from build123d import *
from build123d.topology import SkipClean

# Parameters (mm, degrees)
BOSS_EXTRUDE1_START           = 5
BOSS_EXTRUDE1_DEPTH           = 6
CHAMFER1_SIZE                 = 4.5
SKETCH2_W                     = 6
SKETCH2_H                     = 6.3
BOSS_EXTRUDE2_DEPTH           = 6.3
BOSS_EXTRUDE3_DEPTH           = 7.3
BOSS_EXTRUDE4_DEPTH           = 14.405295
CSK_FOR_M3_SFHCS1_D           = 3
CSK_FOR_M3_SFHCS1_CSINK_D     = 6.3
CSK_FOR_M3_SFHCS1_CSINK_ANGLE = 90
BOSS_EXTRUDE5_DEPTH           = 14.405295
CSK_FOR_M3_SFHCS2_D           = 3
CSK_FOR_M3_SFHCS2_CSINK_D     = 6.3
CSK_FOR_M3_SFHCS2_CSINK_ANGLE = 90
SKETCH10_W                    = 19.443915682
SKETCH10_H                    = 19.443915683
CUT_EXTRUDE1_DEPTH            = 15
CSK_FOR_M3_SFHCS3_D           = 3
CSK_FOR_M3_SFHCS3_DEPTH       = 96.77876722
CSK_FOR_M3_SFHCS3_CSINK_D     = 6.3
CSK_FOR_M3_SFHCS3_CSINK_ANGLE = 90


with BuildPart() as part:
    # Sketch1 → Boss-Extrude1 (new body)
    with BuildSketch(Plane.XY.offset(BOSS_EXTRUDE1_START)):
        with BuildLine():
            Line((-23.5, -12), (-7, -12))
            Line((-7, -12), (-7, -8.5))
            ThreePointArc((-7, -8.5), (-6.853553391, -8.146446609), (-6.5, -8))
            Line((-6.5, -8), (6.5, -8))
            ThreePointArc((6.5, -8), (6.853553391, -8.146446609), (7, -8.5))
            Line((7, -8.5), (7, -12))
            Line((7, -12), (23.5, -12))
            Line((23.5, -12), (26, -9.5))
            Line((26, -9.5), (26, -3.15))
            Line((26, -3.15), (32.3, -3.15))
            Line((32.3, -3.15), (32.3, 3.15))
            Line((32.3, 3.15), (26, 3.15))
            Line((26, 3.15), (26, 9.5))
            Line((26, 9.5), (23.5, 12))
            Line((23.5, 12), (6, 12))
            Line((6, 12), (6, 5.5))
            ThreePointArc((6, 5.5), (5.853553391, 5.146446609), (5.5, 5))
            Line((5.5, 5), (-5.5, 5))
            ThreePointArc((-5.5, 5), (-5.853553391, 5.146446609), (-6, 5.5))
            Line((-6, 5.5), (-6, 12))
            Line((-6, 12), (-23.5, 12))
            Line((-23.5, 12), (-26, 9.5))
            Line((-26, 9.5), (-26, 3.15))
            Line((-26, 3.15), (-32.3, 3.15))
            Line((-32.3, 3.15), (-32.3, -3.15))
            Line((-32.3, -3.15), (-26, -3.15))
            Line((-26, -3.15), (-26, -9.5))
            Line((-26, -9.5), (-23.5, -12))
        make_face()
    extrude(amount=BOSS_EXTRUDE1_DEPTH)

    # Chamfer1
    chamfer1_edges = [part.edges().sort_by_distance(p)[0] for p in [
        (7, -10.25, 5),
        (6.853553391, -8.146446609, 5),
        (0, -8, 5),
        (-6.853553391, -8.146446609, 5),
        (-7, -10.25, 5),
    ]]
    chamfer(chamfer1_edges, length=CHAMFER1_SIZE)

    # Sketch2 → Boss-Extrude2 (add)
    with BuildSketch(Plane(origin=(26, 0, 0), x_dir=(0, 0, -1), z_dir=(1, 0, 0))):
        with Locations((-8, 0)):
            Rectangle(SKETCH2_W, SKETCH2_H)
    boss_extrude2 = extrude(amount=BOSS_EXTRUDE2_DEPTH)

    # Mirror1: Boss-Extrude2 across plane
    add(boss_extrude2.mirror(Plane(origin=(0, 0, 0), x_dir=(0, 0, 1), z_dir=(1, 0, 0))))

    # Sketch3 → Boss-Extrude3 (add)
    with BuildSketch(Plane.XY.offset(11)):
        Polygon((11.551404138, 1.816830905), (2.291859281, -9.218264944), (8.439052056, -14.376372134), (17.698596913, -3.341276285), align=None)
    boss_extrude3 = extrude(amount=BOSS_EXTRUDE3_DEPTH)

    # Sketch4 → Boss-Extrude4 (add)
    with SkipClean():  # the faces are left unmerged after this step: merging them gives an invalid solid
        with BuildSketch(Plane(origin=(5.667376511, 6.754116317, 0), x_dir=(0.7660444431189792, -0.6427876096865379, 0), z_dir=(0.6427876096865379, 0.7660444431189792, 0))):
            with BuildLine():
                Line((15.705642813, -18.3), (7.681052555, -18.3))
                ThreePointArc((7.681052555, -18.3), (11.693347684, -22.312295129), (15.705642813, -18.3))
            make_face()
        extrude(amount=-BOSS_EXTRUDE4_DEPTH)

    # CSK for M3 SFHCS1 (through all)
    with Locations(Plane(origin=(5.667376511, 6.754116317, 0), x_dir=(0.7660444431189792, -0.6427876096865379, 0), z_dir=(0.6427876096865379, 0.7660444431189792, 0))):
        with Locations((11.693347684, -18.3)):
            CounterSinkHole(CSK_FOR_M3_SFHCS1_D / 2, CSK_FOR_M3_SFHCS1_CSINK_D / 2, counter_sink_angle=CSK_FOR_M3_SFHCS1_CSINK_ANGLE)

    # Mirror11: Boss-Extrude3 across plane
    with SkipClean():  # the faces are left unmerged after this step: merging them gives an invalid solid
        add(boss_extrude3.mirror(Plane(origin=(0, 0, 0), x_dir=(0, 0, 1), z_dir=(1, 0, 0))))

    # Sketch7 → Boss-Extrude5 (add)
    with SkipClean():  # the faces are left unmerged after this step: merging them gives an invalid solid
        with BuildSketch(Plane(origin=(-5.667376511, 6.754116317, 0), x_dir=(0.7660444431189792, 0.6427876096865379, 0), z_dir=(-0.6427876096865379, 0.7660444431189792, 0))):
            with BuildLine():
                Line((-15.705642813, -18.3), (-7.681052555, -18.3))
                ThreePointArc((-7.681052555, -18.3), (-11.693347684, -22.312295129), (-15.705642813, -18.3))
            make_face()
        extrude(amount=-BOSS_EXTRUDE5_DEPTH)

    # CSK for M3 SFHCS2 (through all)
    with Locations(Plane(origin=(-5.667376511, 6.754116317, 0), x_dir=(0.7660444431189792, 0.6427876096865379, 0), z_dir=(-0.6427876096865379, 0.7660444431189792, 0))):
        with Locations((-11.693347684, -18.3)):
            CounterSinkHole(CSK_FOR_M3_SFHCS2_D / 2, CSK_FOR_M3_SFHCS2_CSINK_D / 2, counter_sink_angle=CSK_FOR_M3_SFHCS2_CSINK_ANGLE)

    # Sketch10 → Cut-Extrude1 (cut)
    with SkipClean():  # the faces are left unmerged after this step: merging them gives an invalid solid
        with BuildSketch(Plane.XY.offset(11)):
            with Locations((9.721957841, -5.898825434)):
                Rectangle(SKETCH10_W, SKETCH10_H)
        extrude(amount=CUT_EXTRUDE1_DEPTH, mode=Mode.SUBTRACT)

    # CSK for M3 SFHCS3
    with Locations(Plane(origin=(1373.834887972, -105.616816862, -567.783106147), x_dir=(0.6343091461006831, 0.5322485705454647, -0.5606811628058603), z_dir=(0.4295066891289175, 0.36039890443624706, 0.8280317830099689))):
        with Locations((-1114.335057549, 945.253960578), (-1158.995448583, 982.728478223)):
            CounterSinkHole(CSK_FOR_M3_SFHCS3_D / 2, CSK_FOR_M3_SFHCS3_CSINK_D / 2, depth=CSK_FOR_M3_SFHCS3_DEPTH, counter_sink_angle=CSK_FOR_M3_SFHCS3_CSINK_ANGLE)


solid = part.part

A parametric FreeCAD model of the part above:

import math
import FreeCAD as App
import Part
import Sketcher
Q = App.Units.Quantity


def edges_at(feature, points):
    """Names of the edges that pass closest to the given points."""
    edges = feature.Shape.Edges
    near = lambda p: min(range(len(edges)), key=lambda i: edges[i].distToShape(Part.Vertex(*p))[0])
    return sorted({f"Edge{near(p) + 1}" for p in points})


def add_polygon(sketch, points):
    """Adds a closed chain of lines whose ends are joined by coincident constraints."""
    first, n = sketch.GeometryCount, len(points)
    for a, b in zip(points, points[1:] + points[:1]):
        sketch.addGeometry(Part.LineSegment(App.Vector(*a, 0), App.Vector(*b, 0)), False)
    for i in range(n):
        sketch.addConstraint(Sketcher.Constraint("Coincident", first + i, 2, first + (i + 1) % n, 1))

doc = App.newDocument("Part")
body = doc.addObject("PartDesign::Body", "Body")

sketch1 = body.newObject("Sketcher::SketchObject", "Sketch")
sketch1.AttachmentSupport = (doc.getObject("XY_Plane"), [""])
sketch1.MapMode = "FlatFace"
sketch1.AttachmentOffset = App.Placement(App.Vector(0, 0, 5), App.Rotation())
sketch1.addGeometry(Part.LineSegment(App.Vector(-23.5, -12, 0), App.Vector(-7, -12, 0)), False)
sketch1.addGeometry(Part.LineSegment(App.Vector(-7, -12, 0), App.Vector(-7, -8.5, 0)), False)
sketch1.addGeometry(Part.ArcOfCircle(Part.Circle(App.Vector(-6.5, -8.5, 0), App.Vector(0, 0, 1), 0.5), math.radians(90), math.radians(180)), False)
sketch1.addGeometry(Part.LineSegment(App.Vector(-6.5, -8, 0), App.Vector(6.5, -8, 0)), False)
sketch1.addGeometry(Part.ArcOfCircle(Part.Circle(App.Vector(6.5, -8.5, 0), App.Vector(0, 0, 1), 0.5), math.radians(0), math.radians(90)), False)
sketch1.addGeometry(Part.LineSegment(App.Vector(7, -8.5, 0), App.Vector(7, -12, 0)), False)
sketch1.addGeometry(Part.LineSegment(App.Vector(7, -12, 0), App.Vector(23.5, -12, 0)), False)
sketch1.addGeometry(Part.LineSegment(App.Vector(23.5, -12, 0), App.Vector(26, -9.5, 0)), False)
sketch1.addGeometry(Part.LineSegment(App.Vector(26, -9.5, 0), App.Vector(26, -3.15, 0)), False)
sketch1.addGeometry(Part.LineSegment(App.Vector(26, -3.15, 0), App.Vector(32.3, -3.15, 0)), False)
sketch1.addGeometry(Part.LineSegment(App.Vector(32.3, -3.15, 0), App.Vector(32.3, 3.15, 0)), False)
sketch1.addGeometry(Part.LineSegment(App.Vector(32.3, 3.15, 0), App.Vector(26, 3.15, 0)), False)
sketch1.addGeometry(Part.LineSegment(App.Vector(26, 3.15, 0), App.Vector(26, 9.5, 0)), False)
sketch1.addGeometry(Part.LineSegment(App.Vector(26, 9.5, 0), App.Vector(23.5, 12, 0)), False)
sketch1.addGeometry(Part.LineSegment(App.Vector(23.5, 12, 0), App.Vector(6, 12, 0)), False)
sketch1.addGeometry(Part.LineSegment(App.Vector(6, 12, 0), App.Vector(6, 5.5, 0)), False)
sketch1.addGeometry(Part.ArcOfCircle(Part.Circle(App.Vector(5.5, 5.5, 0), App.Vector(0, 0, 1), 0.5), math.radians(-90), math.radians(0)), False)
sketch1.addGeometry(Part.LineSegment(App.Vector(5.5, 5, 0), App.Vector(-5.5, 5, 0)), False)
sketch1.addGeometry(Part.ArcOfCircle(Part.Circle(App.Vector(-5.5, 5.5, 0), App.Vector(0, 0, 1), 0.5), math.radians(180), math.radians(270)), False)
sketch1.addGeometry(Part.LineSegment(App.Vector(-6, 5.5, 0), App.Vector(-6, 12, 0)), False)
sketch1.addGeometry(Part.LineSegment(App.Vector(-6, 12, 0), App.Vector(-23.5, 12, 0)), False)
sketch1.addGeometry(Part.LineSegment(App.Vector(-23.5, 12, 0), App.Vector(-26, 9.5, 0)), False)
sketch1.addGeometry(Part.LineSegment(App.Vector(-26, 9.5, 0), App.Vector(-26, 3.15, 0)), False)
sketch1.addGeometry(Part.LineSegment(App.Vector(-26, 3.15, 0), App.Vector(-32.3, 3.15, 0)), False)
sketch1.addGeometry(Part.LineSegment(App.Vector(-32.3, 3.15, 0), App.Vector(-32.3, -3.15, 0)), False)
sketch1.addGeometry(Part.LineSegment(App.Vector(-32.3, -3.15, 0), App.Vector(-26, -3.15, 0)), False)
sketch1.addGeometry(Part.LineSegment(App.Vector(-26, -3.15, 0), App.Vector(-26, -9.5, 0)), False)
sketch1.addGeometry(Part.LineSegment(App.Vector(-26, -9.5, 0), App.Vector(-23.5, -12, 0)), False)
sketch1.addConstraint(Sketcher.Constraint("Coincident", 0, 2, 1, 1))
sketch1.addConstraint(Sketcher.Constraint("Tangent", 1, 2, 2, 2))
sketch1.addConstraint(Sketcher.Constraint("Tangent", 2, 1, 3, 1))
sketch1.addConstraint(Sketcher.Constraint("Tangent", 3, 2, 4, 2))
sketch1.addConstraint(Sketcher.Constraint("Tangent", 4, 1, 5, 1))
sketch1.addConstraint(Sketcher.Constraint("Coincident", 5, 2, 6, 1))
sketch1.addConstraint(Sketcher.Constraint("Coincident", 6, 2, 7, 1))
sketch1.addConstraint(Sketcher.Constraint("Coincident", 7, 2, 8, 1))
sketch1.addConstraint(Sketcher.Constraint("Coincident", 8, 2, 9, 1))
sketch1.addConstraint(Sketcher.Constraint("Coincident", 9, 2, 10, 1))
sketch1.addConstraint(Sketcher.Constraint("Coincident", 10, 2, 11, 1))
sketch1.addConstraint(Sketcher.Constraint("Coincident", 11, 2, 12, 1))
sketch1.addConstraint(Sketcher.Constraint("Coincident", 12, 2, 13, 1))
sketch1.addConstraint(Sketcher.Constraint("Coincident", 13, 2, 14, 1))
sketch1.addConstraint(Sketcher.Constraint("Coincident", 14, 2, 15, 1))
sketch1.addConstraint(Sketcher.Constraint("Tangent", 15, 2, 16, 2))
sketch1.addConstraint(Sketcher.Constraint("Tangent", 16, 1, 17, 1))
sketch1.addConstraint(Sketcher.Constraint("Tangent", 17, 2, 18, 2))
sketch1.addConstraint(Sketcher.Constraint("Tangent", 18, 1, 19, 1))
sketch1.addConstraint(Sketcher.Constraint("Coincident", 19, 2, 20, 1))
sketch1.addConstraint(Sketcher.Constraint("Coincident", 20, 2, 21, 1))
sketch1.addConstraint(Sketcher.Constraint("Coincident", 21, 2, 22, 1))
sketch1.addConstraint(Sketcher.Constraint("Coincident", 22, 2, 23, 1))
sketch1.addConstraint(Sketcher.Constraint("Coincident", 23, 2, 24, 1))
sketch1.addConstraint(Sketcher.Constraint("Coincident", 24, 2, 25, 1))
sketch1.addConstraint(Sketcher.Constraint("Coincident", 25, 2, 26, 1))
sketch1.addConstraint(Sketcher.Constraint("Coincident", 26, 2, 27, 1))
sketch1.addConstraint(Sketcher.Constraint("Coincident", 27, 2, 0, 1))
sketch1.addConstraint(Sketcher.Constraint("Horizontal", 0))
sketch1.addConstraint(Sketcher.Constraint("Vertical", 1))
sketch1.addConstraint(Sketcher.Constraint("Horizontal", 3))
sketch1.addConstraint(Sketcher.Constraint("Vertical", 5))
sketch1.addConstraint(Sketcher.Constraint("Horizontal", 6))
sketch1.addConstraint(Sketcher.Constraint("Vertical", 8))
sketch1.addConstraint(Sketcher.Constraint("Horizontal", 9))
sketch1.addConstraint(Sketcher.Constraint("Vertical", 10))
sketch1.addConstraint(Sketcher.Constraint("Horizontal", 11))
sketch1.addConstraint(Sketcher.Constraint("Vertical", 12))
sketch1.addConstraint(Sketcher.Constraint("Horizontal", 14))
sketch1.addConstraint(Sketcher.Constraint("Vertical", 15))
sketch1.addConstraint(Sketcher.Constraint("Horizontal", 17))
sketch1.addConstraint(Sketcher.Constraint("Vertical", 19))
sketch1.addConstraint(Sketcher.Constraint("Horizontal", 20))
sketch1.addConstraint(Sketcher.Constraint("Vertical", 22))
sketch1.addConstraint(Sketcher.Constraint("Horizontal", 23))
sketch1.addConstraint(Sketcher.Constraint("Vertical", 24))
sketch1.addConstraint(Sketcher.Constraint("Horizontal", 25))
sketch1.addConstraint(Sketcher.Constraint("Vertical", 26))
sketch1.addConstraint(Sketcher.Constraint("Equal", 2, 4))
sketch1.addConstraint(Sketcher.Constraint("Equal", 4, 16))
sketch1.addConstraint(Sketcher.Constraint("Equal", 16, 18))
sketch1.addConstraint(Sketcher.Constraint("Symmetric", 6, 2, 20, 2, -1, 1))
sketch1.addConstraint(Sketcher.Constraint("Symmetric", 7, 2, 21, 2, -1, 1))
sketch1.addConstraint(Sketcher.Constraint("Symmetric", 9, 2, 23, 2, -1, 1))
sketch1.addConstraint(Sketcher.Constraint("Symmetric", 11, 2, 25, 2, -1, 1))
sketch1.addConstraint(Sketcher.Constraint("Symmetric", 13, 2, 27, 2, -1, 1))
sketch1.addConstraint(Sketcher.Constraint("Symmetric", 0, 2, 5, 2, -2))
sketch1.addConstraint(Sketcher.Constraint("Symmetric", 12, 2, 21, 2, -2))
sketch1.addConstraint(Sketcher.Constraint("Perpendicular", 7, 13))
sketch1.addConstraint(Sketcher.Constraint("Perpendicular", 21, 27))
sketch1.addConstraint(Sketcher.Constraint("Horizontal", 11, 2, 22, 2))
sketch1.addConstraint(Sketcher.Constraint("Vertical", 6, 2, 13, 2))
sketch1.addConstraint(Sketcher.Constraint("Equal", 14, 20))
sketch1.addConstraint(Sketcher.Constraint("Equal", 25, 10))
sketch1.addConstraint(Sketcher.Constraint("Radius", 2, Q("0.5 mm")))
sketch1.addConstraint(Sketcher.Constraint("DistanceX", 3, 1, 3, 2, Q("13 mm")))
sketch1.addConstraint(Sketcher.Constraint("DistanceX", 17, 2, 17, 1, Q("11 mm")))
sketch1.addConstraint(Sketcher.Constraint("DistanceX", 0, 1, 0, 2, Q("16.5 mm")))
sketch1.addConstraint(Sketcher.Constraint("DistanceX", 9, 1, 9, 2, Q("6.3 mm")))
sketch1.addConstraint(Sketcher.Constraint("DistanceY", 1, 1, 1, 2, Q("3.5 mm")))
sketch1.addConstraint(Sketcher.Constraint("DistanceY", 15, 2, 15, 1, Q("6.5 mm")))
sketch1.addConstraint(Sketcher.Constraint("DistanceY", 0, 2, -1, 1, Q("12 mm")))
sketch1.addConstraint(Sketcher.Constraint("DistanceX", -1, 1, 7, 2, Q("26 mm")))
pad1 = body.newObject("PartDesign::Pad", "Pad")
pad1.Profile = sketch1
pad1.Length = 6
doc.recompute()

chamfer = body.newObject("PartDesign::Chamfer", "Chamfer")
chamfer.Base = (pad1, edges_at(pad1, [
    (7, -10.25, 5),
    (6.854, -8.146, 5),
    (0, -8, 5),
    (-6.854, -8.146, 5),
    (-7, -10.25, 5),
]))
chamfer.Size = 4.5

sketch2 = body.newObject("Sketcher::SketchObject", "Sketch001")
sketch2.AttachmentSupport = (doc.getObject("YZ_Plane"), [""])
sketch2.MapMode = "FlatFace"
sketch2.AttachmentOffset = App.Placement(App.Vector(0, 0, 26), App.Rotation())
add_polygon(sketch2, [(3, 11), (-3, 11), (-3, 5), (3, 5)])
sketch2.addConstraint(Sketcher.Constraint("Horizontal", 0))
sketch2.addConstraint(Sketcher.Constraint("Vertical", 1))
sketch2.addConstraint(Sketcher.Constraint("Horizontal", 2))
sketch2.addConstraint(Sketcher.Constraint("Vertical", 3))
sketch2.addConstraint(Sketcher.Constraint("DistanceY", 1, 2, 1, 1, Q("6 mm")))
sketch2.addConstraint(Sketcher.Constraint("DistanceX", 0, 2, 0, 1, Q("6.3 mm")))
sketch2.addConstraint(Sketcher.Constraint("DistanceY", -1, 1, 0, 2, Q("11 mm")))
sketch2.addConstraint(Sketcher.Constraint("DistanceX", 0, 2, -1, 1, Q("3.15 mm")))
pad2 = body.newObject("PartDesign::Pad", "Pad001")
pad2.Profile = sketch2
pad2.Length = 6.3
doc.recompute()

mirrored = body.newObject("PartDesign::Mirrored", "Mirrored")
mirrored.Originals = [pad2]
mirrored.MirrorPlane = (doc.getObject("YZ_Plane"), [""])
body.Tip = mirrored

sketch3 = body.newObject("Sketcher::SketchObject", "Sketch002")
sketch3.AttachmentSupport = (doc.getObject("XY_Plane"), [""])
sketch3.MapMode = "FlatFace"
sketch3.AttachmentOffset = App.Placement(App.Vector(0, 0, 11), App.Rotation())
add_polygon(sketch3, [(12, 2), (2, -9), (8, -14), (18, -3)])
sketch3.addConstraint(Sketcher.Constraint("Perpendicular", 0, 1))
sketch3.addConstraint(Sketcher.Constraint("Perpendicular", 1, 2))
sketch3.addConstraint(Sketcher.Constraint("Perpendicular", 2, 3))
sketch3.addConstraint(Sketcher.Constraint("Angle", 0, Q("-130 deg")))
sketch3.addConstraint(Sketcher.Constraint("Distance", 1, Q("8.02459 mm")))
sketch3.addConstraint(Sketcher.Constraint("DistanceX", -1, 1, 0, 2, Q("2.291859 mm")))
sketch3.addConstraint(Sketcher.Constraint("DistanceY", -1, 1, 3, 2, Q("1.816831 mm")))
sketch3.addConstraint(Sketcher.Constraint("DistanceY", 0, 2, 2, 2, Q("5.876989 mm")))
pad3 = body.newObject("PartDesign::Pad", "Pad002")
pad3.Profile = sketch3
pad3.Length = 7.3

sketch4 = body.newObject("Sketcher::SketchObject", "Sketch003")
sketch4.Placement = App.Placement(App.Vector(5.667377, 6.754116, 0), App.Rotation(App.Vector(0.766044443, -0.64278761, 0), App.Vector(0, 0, -1), App.Vector(0.64278761, 0.766044443, 0), "ZXY"))
sketch4.addGeometry(Part.LineSegment(App.Vector(15.7, -18.3, 0), App.Vector(7.7, -18.3, 0)), False)
sketch4.addGeometry(Part.ArcOfCircle(Part.Circle(App.Vector(11.7, -18.3, 0), App.Vector(0, 0, 1), 4), math.radians(180), math.radians(360)), False)
sketch4.addConstraint(Sketcher.Constraint("Coincident", 0, 1, 1, 2))
sketch4.addConstraint(Sketcher.Constraint("Coincident", 1, 1, 0, 2))
sketch4.addConstraint(Sketcher.Constraint("Horizontal", 0))
sketch4.addConstraint(Sketcher.Constraint("Horizontal", 1, 3, 0, 1))
sketch4.addConstraint(Sketcher.Constraint("DistanceY", 1, 3, -1, 1, Q("18.3 mm")))
sketch4.addConstraint(Sketcher.Constraint("Radius", 1, Q("4.012295 mm")))
sketch4.addConstraint(Sketcher.Constraint("DistanceX", -1, 1, 1, 3, Q("11.693348 mm")))
pad4 = body.newObject("PartDesign::Pad", "Pad003")
pad4.Profile = sketch4
pad4.Length = 14.405295
pad4.Reversed = True

sketch5 = body.newObject("Sketcher::SketchObject", "Sketch004")
sketch5.Placement = App.Placement(App.Vector(5.667377, 6.754116, 0), App.Rotation(App.Vector(0.766044443, -0.64278761, 0), App.Vector(0, 0, -1), App.Vector(0.64278761, 0.766044443, 0), "ZXY"))
sketch5.addGeometry(Part.Circle(App.Vector(11.7, -18.3, 0), App.Vector(0, 0, 1), 1.5), False)
sketch5.addConstraint(Sketcher.Constraint("Diameter", 0, Q("3 mm")))
sketch5.addConstraint(Sketcher.Constraint("DistanceY", 0, 3, -1, 1, Q("18.3 mm")))
sketch5.addConstraint(Sketcher.Constraint("DistanceX", -1, 1, 0, 3, Q("11.693348 mm")))
doc.recompute()
hole = body.newObject("PartDesign::Hole", "Hole")
hole.Profile = sketch5
hole.ThreadType = "None"
hole.Diameter = 3
hole.DepthType = "ThroughAll"
hole.HoleCutType = "Countersink"
hole.HoleCutDiameter = 6.3
hole.HoleCutCountersinkAngle = 90
doc.recompute()

mirrored2 = body.newObject("PartDesign::Mirrored", "Mirrored001")
mirrored2.Originals = [pad3]
mirrored2.MirrorPlane = (doc.getObject("YZ_Plane"), [""])
body.Tip = mirrored2

sketch6 = body.newObject("Sketcher::SketchObject", "Sketch005")
sketch6.Placement = App.Placement(App.Vector(-5.667377, 6.754116, 0), App.Rotation(App.Vector(0.766044443, 0.64278761, 0), App.Vector(0, 0, -1), App.Vector(-0.64278761, 0.766044443, 0), "ZXY"))
sketch6.addGeometry(Part.LineSegment(App.Vector(-7.7, -18.3, 0), App.Vector(-15.7, -18.3, 0)), False)
sketch6.addGeometry(Part.ArcOfCircle(Part.Circle(App.Vector(-11.7, -18.3, 0), App.Vector(0, 0, 1), 4), math.radians(180), math.radians(360)), False)
sketch6.addConstraint(Sketcher.Constraint("Coincident", 0, 1, 1, 2))
sketch6.addConstraint(Sketcher.Constraint("Coincident", 1, 1, 0, 2))
sketch6.addConstraint(Sketcher.Constraint("Horizontal", 0))
sketch6.addConstraint(Sketcher.Constraint("Horizontal", 1, 3, 0, 1))
sketch6.addConstraint(Sketcher.Constraint("DistanceY", 1, 3, -1, 1, Q("18.3 mm")))
sketch6.addConstraint(Sketcher.Constraint("Radius", 1, Q("4.012295 mm")))
sketch6.addConstraint(Sketcher.Constraint("DistanceX", 1, 3, -1, 1, Q("11.693348 mm")))
pad5 = body.newObject("PartDesign::Pad", "Pad004")
pad5.Profile = sketch6
pad5.Length = 14.405295
pad5.Reversed = True

sketch7 = body.newObject("Sketcher::SketchObject", "Sketch006")
sketch7.Placement = App.Placement(App.Vector(-5.667377, 6.754116, 0), App.Rotation(App.Vector(0.766044443, 0.64278761, 0), App.Vector(0, 0, -1), App.Vector(-0.64278761, 0.766044443, 0), "ZXY"))
sketch7.addGeometry(Part.Circle(App.Vector(-11.7, -18.3, 0), App.Vector(0, 0, 1), 1.5), False)
sketch7.addConstraint(Sketcher.Constraint("Diameter", 0, Q("3 mm")))
sketch7.addConstraint(Sketcher.Constraint("DistanceY", 0, 3, -1, 1, Q("18.3 mm")))
sketch7.addConstraint(Sketcher.Constraint("DistanceX", 0, 3, -1, 1, Q("11.693348 mm")))
doc.recompute()
hole2 = body.newObject("PartDesign::Hole", "Hole001")
hole2.Profile = sketch7
hole2.ThreadType = "None"
hole2.Diameter = 3
hole2.DepthType = "ThroughAll"
hole2.HoleCutType = "Countersink"
hole2.HoleCutDiameter = 6.3
hole2.HoleCutCountersinkAngle = 90

sketch8 = body.newObject("Sketcher::SketchObject", "Sketch007")
sketch8.AttachmentSupport = (doc.getObject("XY_Plane"), [""])
sketch8.MapMode = "FlatFace"
sketch8.AttachmentOffset = App.Placement(App.Vector(0, 0, 11), App.Rotation())
add_polygon(sketch8, [(0, 4), (0, -16), (19, -16), (19, 4)])
sketch8.addConstraint(Sketcher.Constraint("Vertical", 0))
sketch8.addConstraint(Sketcher.Constraint("Horizontal", 1))
sketch8.addConstraint(Sketcher.Constraint("Vertical", 2))
sketch8.addConstraint(Sketcher.Constraint("Horizontal", 3))
sketch8.addConstraint(Sketcher.Constraint("PointOnObject", 0, 2, -2))
sketch8.addConstraint(Sketcher.Constraint("Equal", 3, 0))
sketch8.addConstraint(Sketcher.Constraint("DistanceX", 1, 1, 1, 2, Q("19.443916 mm")))
sketch8.addConstraint(Sketcher.Constraint("DistanceY", 0, 2, -1, 1, Q("15.620783 mm")))
pocket1 = body.newObject("PartDesign::Pocket", "Pocket")
pocket1.Profile = sketch8
pocket1.Length = 15
pocket1.Reversed = True

sketch9 = body.newObject("Sketcher::SketchObject", "Sketch008")
sketch9.Placement = App.Placement(App.Vector(35.161407, 29.503923, 67.786517), App.Rotation(App.Vector(0.634309146, 0.532248571, -0.560681163), App.Vector(-0.64278761, 0.766044443, 0), App.Vector(0.429506689, 0.360398904, 0.828031783), "ZXY"))
sketch9.addGeometry(Part.Circle(App.Vector(19.2, -18.7, 0), App.Vector(0, 0, 1), 1.5), False)
sketch9.addGeometry(Part.Circle(App.Vector(-25.4, 18.7, 0), App.Vector(0, 0, 1), 1.5), False)
sketch9.addConstraint(Sketcher.Constraint("Equal", 0, 1))
sketch9.addConstraint(Sketcher.Constraint("Diameter", 0, Q("3 mm")))
sketch9.addConstraint(Sketcher.Constraint("DistanceX", -1, 1, 0, 3, Q("19.23187 mm")))
sketch9.addConstraint(Sketcher.Constraint("DistanceY", 0, 3, -1, 1, Q("18.737259 mm")))
sketch9.addConstraint(Sketcher.Constraint("DistanceX", 1, 3, -1, 1, Q("25.428522 mm")))
sketch9.addConstraint(Sketcher.Constraint("DistanceY", -1, 1, 1, 3, Q("18.737259 mm")))
doc.recompute()
hole3 = body.newObject("PartDesign::Hole", "Hole002")
hole3.Profile = sketch9
hole3.ThreadType = "None"
hole3.Diameter = 3
hole3.DepthType = "Dimension"
hole3.Depth = 96.778767
hole3.DrillPoint = "Flat"
hole3.HoleCutType = "Countersink"
hole3.HoleCutDiameter = 6.3
hole3.HoleCutCountersinkAngle = 90

doc.recompute()
